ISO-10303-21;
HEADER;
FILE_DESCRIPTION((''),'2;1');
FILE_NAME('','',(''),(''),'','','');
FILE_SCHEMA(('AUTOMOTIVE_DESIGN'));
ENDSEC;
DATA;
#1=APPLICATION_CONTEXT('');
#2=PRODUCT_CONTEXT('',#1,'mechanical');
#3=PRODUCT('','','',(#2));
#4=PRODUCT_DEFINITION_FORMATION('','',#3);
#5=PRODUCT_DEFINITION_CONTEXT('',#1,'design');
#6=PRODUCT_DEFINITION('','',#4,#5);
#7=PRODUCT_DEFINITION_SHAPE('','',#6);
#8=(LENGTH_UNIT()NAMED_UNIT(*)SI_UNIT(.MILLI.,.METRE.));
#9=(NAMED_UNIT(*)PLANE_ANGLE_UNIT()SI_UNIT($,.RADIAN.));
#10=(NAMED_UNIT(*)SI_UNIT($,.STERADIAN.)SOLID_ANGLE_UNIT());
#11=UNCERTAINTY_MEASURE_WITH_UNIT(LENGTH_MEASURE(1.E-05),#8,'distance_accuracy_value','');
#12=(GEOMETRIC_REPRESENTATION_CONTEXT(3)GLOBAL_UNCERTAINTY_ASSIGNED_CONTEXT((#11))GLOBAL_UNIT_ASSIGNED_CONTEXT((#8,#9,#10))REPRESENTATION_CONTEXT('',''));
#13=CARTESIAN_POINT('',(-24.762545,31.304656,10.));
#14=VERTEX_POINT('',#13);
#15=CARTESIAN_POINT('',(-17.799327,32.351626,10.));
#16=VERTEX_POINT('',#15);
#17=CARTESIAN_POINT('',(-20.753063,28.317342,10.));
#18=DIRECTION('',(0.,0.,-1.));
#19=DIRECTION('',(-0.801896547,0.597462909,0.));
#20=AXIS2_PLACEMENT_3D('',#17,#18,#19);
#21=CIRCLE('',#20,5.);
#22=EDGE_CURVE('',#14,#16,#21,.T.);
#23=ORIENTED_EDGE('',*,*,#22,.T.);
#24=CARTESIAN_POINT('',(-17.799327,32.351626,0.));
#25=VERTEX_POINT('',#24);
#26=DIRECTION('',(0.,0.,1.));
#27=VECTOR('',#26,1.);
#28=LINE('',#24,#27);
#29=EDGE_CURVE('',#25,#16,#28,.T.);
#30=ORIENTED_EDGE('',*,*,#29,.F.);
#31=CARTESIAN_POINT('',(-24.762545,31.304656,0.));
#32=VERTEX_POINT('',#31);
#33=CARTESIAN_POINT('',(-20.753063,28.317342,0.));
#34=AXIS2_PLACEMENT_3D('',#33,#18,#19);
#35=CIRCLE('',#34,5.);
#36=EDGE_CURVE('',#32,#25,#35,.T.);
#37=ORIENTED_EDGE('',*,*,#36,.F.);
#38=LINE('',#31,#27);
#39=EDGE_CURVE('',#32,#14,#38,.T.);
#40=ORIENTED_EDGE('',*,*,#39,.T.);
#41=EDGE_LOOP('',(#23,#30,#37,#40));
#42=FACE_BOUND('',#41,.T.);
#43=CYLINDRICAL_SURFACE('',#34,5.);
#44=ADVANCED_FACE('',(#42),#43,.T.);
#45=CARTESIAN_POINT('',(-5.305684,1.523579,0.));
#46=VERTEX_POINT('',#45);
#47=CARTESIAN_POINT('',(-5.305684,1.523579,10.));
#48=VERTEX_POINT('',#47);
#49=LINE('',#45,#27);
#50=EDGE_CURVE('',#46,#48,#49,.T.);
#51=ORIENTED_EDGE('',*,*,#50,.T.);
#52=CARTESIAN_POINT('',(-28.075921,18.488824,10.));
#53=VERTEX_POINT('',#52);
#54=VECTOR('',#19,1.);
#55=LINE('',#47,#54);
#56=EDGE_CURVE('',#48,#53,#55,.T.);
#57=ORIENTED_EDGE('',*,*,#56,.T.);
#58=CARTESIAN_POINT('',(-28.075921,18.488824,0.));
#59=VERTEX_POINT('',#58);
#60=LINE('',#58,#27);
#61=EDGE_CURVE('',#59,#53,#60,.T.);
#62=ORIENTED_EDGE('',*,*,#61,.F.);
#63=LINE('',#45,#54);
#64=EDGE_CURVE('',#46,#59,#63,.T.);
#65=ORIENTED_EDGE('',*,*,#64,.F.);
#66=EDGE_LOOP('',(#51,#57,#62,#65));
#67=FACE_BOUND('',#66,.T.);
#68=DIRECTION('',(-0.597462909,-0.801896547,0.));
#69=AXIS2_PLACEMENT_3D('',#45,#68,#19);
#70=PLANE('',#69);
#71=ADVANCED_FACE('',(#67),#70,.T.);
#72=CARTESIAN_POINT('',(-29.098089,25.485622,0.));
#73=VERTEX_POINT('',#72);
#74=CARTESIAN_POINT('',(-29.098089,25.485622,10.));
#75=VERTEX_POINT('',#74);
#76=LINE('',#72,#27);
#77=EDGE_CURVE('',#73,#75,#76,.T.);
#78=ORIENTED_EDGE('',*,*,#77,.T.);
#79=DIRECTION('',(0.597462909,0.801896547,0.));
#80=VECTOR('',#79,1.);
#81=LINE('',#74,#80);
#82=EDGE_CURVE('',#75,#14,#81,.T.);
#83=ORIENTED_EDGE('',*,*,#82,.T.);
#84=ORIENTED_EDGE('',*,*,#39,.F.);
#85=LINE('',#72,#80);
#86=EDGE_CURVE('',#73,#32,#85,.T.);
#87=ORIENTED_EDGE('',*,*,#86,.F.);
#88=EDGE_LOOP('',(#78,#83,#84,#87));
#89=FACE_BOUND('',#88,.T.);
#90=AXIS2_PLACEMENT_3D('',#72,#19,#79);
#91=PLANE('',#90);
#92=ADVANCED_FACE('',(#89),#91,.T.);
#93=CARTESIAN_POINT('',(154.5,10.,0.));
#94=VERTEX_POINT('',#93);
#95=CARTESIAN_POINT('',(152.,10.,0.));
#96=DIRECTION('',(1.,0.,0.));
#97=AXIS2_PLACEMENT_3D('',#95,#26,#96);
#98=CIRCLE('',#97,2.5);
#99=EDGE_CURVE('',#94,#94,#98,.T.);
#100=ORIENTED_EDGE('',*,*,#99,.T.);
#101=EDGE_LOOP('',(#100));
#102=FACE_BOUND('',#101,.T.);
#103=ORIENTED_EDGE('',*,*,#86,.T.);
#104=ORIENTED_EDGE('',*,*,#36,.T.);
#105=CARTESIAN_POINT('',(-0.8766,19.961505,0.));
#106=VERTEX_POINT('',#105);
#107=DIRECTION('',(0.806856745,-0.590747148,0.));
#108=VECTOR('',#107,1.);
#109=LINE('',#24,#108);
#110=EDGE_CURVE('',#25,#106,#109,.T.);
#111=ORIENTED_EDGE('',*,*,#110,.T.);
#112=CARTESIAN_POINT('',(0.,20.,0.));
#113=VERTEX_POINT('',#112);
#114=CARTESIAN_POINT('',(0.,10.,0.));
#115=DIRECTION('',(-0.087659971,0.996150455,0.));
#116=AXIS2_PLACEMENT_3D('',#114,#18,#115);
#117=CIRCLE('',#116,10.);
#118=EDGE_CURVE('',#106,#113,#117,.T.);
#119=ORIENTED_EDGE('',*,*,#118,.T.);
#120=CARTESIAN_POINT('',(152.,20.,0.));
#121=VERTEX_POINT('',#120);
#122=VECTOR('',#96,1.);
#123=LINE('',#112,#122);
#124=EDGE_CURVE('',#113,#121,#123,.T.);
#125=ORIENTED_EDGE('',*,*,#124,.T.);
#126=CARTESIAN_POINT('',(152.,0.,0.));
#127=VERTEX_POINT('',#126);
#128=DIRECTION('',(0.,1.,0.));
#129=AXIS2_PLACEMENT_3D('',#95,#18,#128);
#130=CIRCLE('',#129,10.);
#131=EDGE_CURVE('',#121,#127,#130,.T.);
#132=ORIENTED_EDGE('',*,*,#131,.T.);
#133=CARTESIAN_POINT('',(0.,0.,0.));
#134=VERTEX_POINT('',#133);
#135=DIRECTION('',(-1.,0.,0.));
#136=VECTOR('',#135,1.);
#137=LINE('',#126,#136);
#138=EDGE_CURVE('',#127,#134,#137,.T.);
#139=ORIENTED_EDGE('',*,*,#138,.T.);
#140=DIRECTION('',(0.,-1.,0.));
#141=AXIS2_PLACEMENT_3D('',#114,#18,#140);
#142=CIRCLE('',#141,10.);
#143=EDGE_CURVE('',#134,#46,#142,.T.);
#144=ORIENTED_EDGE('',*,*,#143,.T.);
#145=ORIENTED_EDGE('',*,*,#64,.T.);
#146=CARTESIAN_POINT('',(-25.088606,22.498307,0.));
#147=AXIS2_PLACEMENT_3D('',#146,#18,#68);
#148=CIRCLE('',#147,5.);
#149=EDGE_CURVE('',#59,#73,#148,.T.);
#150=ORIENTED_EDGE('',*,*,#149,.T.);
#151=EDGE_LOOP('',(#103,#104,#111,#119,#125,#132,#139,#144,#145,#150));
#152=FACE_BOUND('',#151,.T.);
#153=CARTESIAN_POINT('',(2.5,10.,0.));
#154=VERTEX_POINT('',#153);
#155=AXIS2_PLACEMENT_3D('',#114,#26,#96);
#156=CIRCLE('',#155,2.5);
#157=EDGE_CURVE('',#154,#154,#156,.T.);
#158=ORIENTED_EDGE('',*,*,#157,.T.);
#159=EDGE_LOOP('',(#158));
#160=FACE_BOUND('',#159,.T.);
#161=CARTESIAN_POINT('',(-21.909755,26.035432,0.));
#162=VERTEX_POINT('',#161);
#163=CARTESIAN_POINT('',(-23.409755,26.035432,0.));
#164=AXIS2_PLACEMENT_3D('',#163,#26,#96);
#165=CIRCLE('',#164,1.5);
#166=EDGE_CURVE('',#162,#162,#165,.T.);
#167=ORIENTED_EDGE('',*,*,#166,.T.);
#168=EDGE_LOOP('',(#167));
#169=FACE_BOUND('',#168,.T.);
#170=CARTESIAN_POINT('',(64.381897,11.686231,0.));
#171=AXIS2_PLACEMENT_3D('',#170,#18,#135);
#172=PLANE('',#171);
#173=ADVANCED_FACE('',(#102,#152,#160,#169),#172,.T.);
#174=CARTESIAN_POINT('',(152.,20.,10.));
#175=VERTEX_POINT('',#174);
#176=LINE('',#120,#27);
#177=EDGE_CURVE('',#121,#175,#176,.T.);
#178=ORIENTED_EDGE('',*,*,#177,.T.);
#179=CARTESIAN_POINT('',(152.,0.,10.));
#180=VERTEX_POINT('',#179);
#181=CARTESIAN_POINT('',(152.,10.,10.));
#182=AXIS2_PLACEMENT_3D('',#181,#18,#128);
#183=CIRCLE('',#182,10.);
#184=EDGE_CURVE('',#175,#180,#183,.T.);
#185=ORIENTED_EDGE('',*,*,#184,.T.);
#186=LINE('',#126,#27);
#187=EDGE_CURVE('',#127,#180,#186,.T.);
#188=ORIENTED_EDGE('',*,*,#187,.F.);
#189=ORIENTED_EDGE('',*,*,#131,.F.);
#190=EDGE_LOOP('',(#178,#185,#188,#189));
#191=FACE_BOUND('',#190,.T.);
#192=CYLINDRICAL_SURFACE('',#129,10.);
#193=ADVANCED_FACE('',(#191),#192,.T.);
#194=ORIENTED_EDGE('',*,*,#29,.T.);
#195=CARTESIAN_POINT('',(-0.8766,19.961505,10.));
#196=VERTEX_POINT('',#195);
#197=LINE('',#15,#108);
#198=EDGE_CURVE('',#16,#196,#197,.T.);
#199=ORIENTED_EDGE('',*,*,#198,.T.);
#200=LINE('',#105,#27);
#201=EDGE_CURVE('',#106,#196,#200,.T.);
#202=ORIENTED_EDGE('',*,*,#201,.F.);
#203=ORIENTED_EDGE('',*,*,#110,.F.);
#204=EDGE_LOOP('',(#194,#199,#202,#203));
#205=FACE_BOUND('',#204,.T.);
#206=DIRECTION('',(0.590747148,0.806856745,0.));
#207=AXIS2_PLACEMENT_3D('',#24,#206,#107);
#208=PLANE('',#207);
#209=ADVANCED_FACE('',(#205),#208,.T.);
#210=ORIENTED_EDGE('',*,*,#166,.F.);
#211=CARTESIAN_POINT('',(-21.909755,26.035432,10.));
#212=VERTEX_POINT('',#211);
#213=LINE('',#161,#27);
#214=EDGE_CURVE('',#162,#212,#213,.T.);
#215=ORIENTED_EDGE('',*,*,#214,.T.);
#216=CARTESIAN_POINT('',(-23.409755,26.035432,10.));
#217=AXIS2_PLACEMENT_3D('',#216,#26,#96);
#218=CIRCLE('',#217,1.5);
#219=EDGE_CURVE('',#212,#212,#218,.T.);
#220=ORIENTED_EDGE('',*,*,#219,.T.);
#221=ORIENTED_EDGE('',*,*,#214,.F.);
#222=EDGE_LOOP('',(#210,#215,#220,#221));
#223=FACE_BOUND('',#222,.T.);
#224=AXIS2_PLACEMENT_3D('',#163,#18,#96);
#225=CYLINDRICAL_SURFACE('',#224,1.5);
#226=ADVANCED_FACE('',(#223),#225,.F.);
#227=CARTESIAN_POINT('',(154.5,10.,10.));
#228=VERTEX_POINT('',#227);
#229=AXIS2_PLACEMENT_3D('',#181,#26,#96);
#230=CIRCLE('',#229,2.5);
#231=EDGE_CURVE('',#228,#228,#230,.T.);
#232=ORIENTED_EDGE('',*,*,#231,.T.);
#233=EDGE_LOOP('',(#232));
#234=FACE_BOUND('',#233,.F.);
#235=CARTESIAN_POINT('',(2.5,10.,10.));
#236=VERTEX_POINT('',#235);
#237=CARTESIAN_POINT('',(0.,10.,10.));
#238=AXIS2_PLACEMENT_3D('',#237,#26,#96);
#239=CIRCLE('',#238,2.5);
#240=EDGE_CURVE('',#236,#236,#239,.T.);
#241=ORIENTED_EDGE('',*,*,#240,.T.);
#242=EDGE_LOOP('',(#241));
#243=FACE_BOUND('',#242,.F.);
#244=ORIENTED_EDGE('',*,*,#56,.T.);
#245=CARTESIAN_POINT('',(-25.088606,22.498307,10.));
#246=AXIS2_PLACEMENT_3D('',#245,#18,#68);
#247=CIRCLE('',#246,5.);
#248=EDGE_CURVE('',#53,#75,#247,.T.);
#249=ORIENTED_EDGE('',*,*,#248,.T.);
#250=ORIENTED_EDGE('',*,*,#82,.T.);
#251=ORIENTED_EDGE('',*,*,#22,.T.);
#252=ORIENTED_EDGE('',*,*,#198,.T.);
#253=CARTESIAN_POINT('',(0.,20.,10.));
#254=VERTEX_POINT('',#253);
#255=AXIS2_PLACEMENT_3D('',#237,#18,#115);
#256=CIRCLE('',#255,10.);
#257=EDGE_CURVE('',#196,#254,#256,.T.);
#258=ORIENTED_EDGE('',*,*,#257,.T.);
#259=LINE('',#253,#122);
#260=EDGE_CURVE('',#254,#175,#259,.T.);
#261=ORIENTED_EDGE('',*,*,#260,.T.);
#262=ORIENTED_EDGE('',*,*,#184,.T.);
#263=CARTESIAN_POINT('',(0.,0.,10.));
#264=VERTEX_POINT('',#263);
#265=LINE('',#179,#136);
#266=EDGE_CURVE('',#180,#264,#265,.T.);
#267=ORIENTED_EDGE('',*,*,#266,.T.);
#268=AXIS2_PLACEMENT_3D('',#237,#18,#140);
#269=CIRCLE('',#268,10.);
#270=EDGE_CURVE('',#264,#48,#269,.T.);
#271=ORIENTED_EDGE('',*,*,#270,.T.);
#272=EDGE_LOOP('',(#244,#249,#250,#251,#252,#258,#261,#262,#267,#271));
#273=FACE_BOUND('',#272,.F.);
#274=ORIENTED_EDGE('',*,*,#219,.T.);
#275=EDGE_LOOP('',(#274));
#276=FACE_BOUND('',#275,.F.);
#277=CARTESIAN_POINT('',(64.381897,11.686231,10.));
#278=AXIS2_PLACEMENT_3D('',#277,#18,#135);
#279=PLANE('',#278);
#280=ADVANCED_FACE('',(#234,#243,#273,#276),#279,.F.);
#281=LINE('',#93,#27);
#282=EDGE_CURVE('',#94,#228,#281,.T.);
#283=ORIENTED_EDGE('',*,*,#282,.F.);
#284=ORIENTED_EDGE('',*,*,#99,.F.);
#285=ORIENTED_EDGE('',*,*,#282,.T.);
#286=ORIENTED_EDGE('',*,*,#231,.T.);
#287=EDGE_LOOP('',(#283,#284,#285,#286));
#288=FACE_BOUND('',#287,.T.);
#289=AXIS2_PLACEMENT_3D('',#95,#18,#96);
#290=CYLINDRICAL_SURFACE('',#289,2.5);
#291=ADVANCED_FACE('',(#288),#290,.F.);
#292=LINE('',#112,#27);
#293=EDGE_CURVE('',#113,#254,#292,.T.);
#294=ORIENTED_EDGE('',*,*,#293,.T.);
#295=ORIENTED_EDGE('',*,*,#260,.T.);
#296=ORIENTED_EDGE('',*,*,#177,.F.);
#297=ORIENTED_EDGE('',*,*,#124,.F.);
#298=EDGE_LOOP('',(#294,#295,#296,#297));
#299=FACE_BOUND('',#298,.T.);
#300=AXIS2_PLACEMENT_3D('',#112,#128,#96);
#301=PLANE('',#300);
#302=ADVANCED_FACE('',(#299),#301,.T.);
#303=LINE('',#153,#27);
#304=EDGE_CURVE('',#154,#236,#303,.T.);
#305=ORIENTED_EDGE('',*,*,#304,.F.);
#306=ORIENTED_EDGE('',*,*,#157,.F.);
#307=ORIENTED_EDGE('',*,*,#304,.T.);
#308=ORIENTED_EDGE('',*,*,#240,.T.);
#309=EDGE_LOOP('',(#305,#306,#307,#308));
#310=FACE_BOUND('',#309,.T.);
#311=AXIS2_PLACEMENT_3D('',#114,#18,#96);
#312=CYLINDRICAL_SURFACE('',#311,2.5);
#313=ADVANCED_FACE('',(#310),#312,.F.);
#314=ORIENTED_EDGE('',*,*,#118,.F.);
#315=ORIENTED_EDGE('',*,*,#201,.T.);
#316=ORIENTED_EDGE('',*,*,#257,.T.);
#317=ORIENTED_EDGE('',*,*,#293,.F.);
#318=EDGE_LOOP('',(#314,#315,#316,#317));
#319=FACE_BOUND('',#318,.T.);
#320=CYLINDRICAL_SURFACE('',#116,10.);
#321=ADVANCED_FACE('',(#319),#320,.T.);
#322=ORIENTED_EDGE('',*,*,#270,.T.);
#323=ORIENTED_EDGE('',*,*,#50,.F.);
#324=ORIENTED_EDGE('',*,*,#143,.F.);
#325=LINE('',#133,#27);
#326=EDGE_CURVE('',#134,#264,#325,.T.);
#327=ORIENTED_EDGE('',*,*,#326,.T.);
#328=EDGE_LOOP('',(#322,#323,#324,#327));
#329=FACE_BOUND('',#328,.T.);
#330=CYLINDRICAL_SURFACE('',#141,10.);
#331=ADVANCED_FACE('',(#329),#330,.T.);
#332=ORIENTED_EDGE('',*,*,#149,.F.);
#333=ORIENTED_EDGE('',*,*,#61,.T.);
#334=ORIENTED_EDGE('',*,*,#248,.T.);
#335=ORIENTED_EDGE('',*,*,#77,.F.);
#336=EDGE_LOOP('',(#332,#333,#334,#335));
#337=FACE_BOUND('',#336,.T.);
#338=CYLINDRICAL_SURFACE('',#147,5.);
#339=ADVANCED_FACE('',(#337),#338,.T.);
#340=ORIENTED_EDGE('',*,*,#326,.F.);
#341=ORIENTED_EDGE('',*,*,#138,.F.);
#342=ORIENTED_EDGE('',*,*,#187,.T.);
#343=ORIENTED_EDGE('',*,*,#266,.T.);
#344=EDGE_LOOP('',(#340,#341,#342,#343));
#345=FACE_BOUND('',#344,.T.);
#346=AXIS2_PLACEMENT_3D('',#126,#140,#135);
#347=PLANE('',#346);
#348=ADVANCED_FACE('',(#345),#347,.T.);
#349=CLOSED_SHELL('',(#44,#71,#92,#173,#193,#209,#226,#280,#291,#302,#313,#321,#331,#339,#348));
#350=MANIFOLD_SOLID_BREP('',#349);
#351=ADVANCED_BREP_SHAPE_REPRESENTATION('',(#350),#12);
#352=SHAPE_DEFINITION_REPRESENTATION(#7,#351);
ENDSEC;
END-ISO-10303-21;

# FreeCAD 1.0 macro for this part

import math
import FreeCAD as App
import Part
import Sketcher
from FreeCAD import Vector

doc = App.newDocument("Part")
params = doc.addObject("Spreadsheet::Sheet", "Params")
for row, (alias, value) in enumerate([
    ("sketch1_diameter", "5 mm"),
    ("sketch1_diameter2", "3 mm"),
    ("sketch1_radius", "10 mm"),
    ("sketch1_radius2", "5 mm"),
    ("sketch1_width", "152 mm"),
    ("pad1_length", "10 mm"),
], start=1):
    params.set(f"A{row}", alias)
    params.set(f"B{row}", "=" + value)
    params.setAlias(f"B{row}", alias)

body = doc.addObject("PartDesign::Body", "Body")

# Sketch on XY plane
sketch1 = body.newObject("Sketcher::SketchObject", "Sketch")
sketch1.AttachmentSupport = (doc.getObject("XY_Plane"), [""])
sketch1.MapMode = "FlatFace"
sketch1.addGeometry([
    Part.LineSegment(Vector(-28.1, 18.5, 0), Vector(-5.3, 1.5, 0)),  # 0
    Part.ArcOfCircle(Part.Circle(Vector(0, 10, 0), Vector(0, 0, 1), 10), math.radians(-122), math.radians(-90)),  # 1
    Part.LineSegment(Vector(0, 0, 0), Vector(152, 0, 0)),  # 2
    Part.ArcOfCircle(Part.Circle(Vector(152, 10, 0), Vector(0, 0, 1), 10), math.radians(-90), math.radians(90)),  # 3
    Part.LineSegment(Vector(152, 20, 0), Vector(0, 20, 0)),  # 4
    Part.ArcOfCircle(Part.Circle(Vector(0, 10, 0), Vector(0, 0, 1), 10), math.radians(90), math.radians(95.03)),  # 5
    Part.LineSegment(Vector(-0.9, 20, 0), Vector(-17.8, 32.4, 0)),  # 6
    Part.ArcOfCircle(Part.Circle(Vector(-20.8, 28.3, 0), Vector(0, 0, 1), 5), math.radians(54), math.radians(143)),  # 7
    Part.LineSegment(Vector(-24.8, 31.3, 0), Vector(-29.1, 25.5, 0)),  # 8
    Part.ArcOfCircle(Part.Circle(Vector(-25.1, 22.5, 0), Vector(0, 0, 1), 5), math.radians(143), math.radians(233)),  # 9
    Part.Circle(Vector(152, 10, 0), Vector(0, 0, 1), 2.5),  # 10
    Part.Circle(Vector(0, 10, 0), Vector(0, 0, 1), 2.5),  # 11
    Part.Circle(Vector(-23.4, 26, 0), Vector(0, 0, 1), 1.5),  # 12
], False)
sketch1.addConstraint([
    Sketcher.Constraint("Coincident", 0, 2, 1, 1),
    Sketcher.Constraint("Tangent", 1, 2, 2, 1),
    Sketcher.Constraint("Tangent", 2, 2, 3, 1),
    Sketcher.Constraint("Tangent", 3, 2, 4, 1),
    Sketcher.Constraint("Tangent", 4, 2, 5, 1),
    Sketcher.Constraint("Coincident", 5, 2, 6, 1),
    Sketcher.Constraint("Tangent", 6, 2, 7, 1),
    Sketcher.Constraint("Tangent", 7, 2, 8, 1),
    Sketcher.Constraint("Tangent", 8, 2, 9, 1),
    Sketcher.Constraint("Tangent", 9, 2, 0, 1),
    Sketcher.Constraint("Horizontal", 2),
    Sketcher.Constraint("Horizontal", 4),
    Sketcher.Constraint("Coincident", 1, 2, -1, 1),
    Sketcher.Constraint("Coincident", 5, 3, 1, 3),
    Sketcher.Constraint("Coincident", 10, 3, 3, 3),
    Sketcher.Constraint("Coincident", 11, 3, 1, 3),
    Sketcher.Constraint("Equal", 1, 3),
    Sketcher.Constraint("Equal", 7, 9),
    Sketcher.Constraint("Equal", 10, 11),
    Sketcher.Constraint("Perpendicular", 0, 8),
    Sketcher.Constraint("Diameter", 10, 5.0),
    Sketcher.Constraint("Diameter", 12, 3.0),
    Sketcher.Constraint("Radius", 1, 10.0),
    Sketcher.Constraint("Radius", 7, 5.0),
    Sketcher.Constraint("DistanceX", 2, 1, 2, 2, 152.0),
    Sketcher.Constraint("DistanceX", 5, 2, -1, 1, 0.8766),
    Sketcher.Constraint("Distance", 0, 28.39548),
    Sketcher.Constraint("Distance", 8, 7.25659),
    Sketcher.Constraint("DistanceY", -1, 1, 7, 3, 28.317342),
    Sketcher.Constraint("DistanceY", -1, 1, 12, 3, 26.035432),
    Sketcher.Constraint("DistanceY", -1, 1, 0, 2, 1.523579),
    Sketcher.Constraint("DistanceX", 9, 3, 12, 3, 1.678851),
])
sketch1.setExpression("Constraints[20]", "Params.sketch1_diameter")
sketch1.setExpression("Constraints[21]", "Params.sketch1_diameter2")
sketch1.setExpression("Constraints[22]", "Params.sketch1_radius")
sketch1.setExpression("Constraints[23]", "Params.sketch1_radius2")
sketch1.setExpression("Constraints[24]", "Params.sketch1_width")
pad1 = body.newObject("PartDesign::Pad", "Pad")
pad1.Profile = sketch1
pad1.setExpression("Length", "Params.pad1_length")

doc.recompute()
